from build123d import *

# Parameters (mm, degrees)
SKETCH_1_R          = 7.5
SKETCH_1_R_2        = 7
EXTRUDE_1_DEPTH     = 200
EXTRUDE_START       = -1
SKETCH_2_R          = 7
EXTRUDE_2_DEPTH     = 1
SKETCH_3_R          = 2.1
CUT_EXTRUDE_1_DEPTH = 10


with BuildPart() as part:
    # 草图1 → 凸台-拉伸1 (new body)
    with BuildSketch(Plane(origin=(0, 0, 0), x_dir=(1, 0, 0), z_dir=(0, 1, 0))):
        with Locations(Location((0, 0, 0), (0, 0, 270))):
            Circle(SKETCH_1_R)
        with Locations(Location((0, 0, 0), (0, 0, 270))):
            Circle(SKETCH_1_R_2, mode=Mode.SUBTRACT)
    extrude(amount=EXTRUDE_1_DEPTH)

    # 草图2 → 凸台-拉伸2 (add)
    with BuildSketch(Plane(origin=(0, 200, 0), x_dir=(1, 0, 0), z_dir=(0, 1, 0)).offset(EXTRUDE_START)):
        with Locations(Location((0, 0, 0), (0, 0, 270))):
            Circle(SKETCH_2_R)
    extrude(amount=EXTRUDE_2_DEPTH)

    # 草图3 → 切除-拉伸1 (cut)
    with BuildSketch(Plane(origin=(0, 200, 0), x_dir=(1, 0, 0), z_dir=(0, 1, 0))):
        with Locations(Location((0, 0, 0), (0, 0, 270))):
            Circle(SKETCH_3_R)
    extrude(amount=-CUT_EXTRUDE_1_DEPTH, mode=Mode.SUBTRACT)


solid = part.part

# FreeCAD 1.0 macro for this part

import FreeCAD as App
import Part
import Sketcher

V = App.Vector
Q = App.Units.Quantity

doc = App.newDocument("Part")
body = doc.addObject("PartDesign::Body", "Body")

# Sketch on XZ plane
sketch1 = body.newObject("Sketcher::SketchObject", "Sketch")
sketch1.AttachmentSupport = (doc.getObject("XZ_Plane"), [""])
sketch1.MapMode = "FlatFace"
sketch1.addGeometry(Part.Circle(V(0, 0, 0), V(0, 0, 1), 8), False)
sketch1.addGeometry(Part.Circle(V(0, 0, 0), V(0, 0, 1), 7), False)
sketch1.addConstraint(Sketcher.Constraint("Coincident", 0, 3, -1, 1))
sketch1.addConstraint(Sketcher.Constraint("Coincident", 1, 3, -1, 1))
sketch1.addConstraint(Sketcher.Constraint("Diameter", 0, Q("15 mm")))
sketch1.addConstraint(Sketcher.Constraint("Diameter", 1, Q("14 mm")))
pad1 = body.newObject("PartDesign::Pad", "Pad")
pad1.Profile = sketch1
pad1.Length = 200
pad1.Reversed = True

# Sketch on XZ plane
sketch2 = body.newObject("Sketcher::SketchObject", "Sketch001")
sketch2.AttachmentSupport = (doc.getObject("XZ_Plane"), [""])
sketch2.MapMode = "FlatFace"
sketch2.AttachmentOffset = App.Placement(V(0, 0, -199), App.Rotation())
sketch2.addGeometry(Part.Circle(V(0, 0, 0), V(0, 0, 1), 7), False)
sketch2.addConstraint(Sketcher.Constraint("Coincident", 0, 3, -1, 1))
sketch2.addConstraint(Sketcher.Constraint("Diameter", 0, Q("14 mm")))
pad2 = body.newObject("PartDesign::Pad", "Pad001")
pad2.Profile = sketch2
pad2.Length = 1
pad2.Reversed = True

# Sketch on XZ plane
sketch3 = body.newObject("Sketcher::SketchObject", "Sketch002")
sketch3.AttachmentSupport = (doc.getObject("XZ_Plane"), [""])
sketch3.MapMode = "FlatFace"
sketch3.AttachmentOffset = App.Placement(V(0, 0, -200), App.Rotation())
sketch3.addGeometry(Part.Circle(V(0, 0, 0), V(0, 0, 1), 2.1), False)
sketch3.addConstraint(Sketcher.Constraint("Coincident", 0, 3, -1, 1))
sketch3.addConstraint(Sketcher.Constraint("Diameter", 0, Q("4.2 mm")))
pocket1 = body.newObject("PartDesign::Pocket", "Pocket")
pocket1.Profile = sketch3
pocket1.Length = 10
pocket1.Reversed = True

doc.recompute()
